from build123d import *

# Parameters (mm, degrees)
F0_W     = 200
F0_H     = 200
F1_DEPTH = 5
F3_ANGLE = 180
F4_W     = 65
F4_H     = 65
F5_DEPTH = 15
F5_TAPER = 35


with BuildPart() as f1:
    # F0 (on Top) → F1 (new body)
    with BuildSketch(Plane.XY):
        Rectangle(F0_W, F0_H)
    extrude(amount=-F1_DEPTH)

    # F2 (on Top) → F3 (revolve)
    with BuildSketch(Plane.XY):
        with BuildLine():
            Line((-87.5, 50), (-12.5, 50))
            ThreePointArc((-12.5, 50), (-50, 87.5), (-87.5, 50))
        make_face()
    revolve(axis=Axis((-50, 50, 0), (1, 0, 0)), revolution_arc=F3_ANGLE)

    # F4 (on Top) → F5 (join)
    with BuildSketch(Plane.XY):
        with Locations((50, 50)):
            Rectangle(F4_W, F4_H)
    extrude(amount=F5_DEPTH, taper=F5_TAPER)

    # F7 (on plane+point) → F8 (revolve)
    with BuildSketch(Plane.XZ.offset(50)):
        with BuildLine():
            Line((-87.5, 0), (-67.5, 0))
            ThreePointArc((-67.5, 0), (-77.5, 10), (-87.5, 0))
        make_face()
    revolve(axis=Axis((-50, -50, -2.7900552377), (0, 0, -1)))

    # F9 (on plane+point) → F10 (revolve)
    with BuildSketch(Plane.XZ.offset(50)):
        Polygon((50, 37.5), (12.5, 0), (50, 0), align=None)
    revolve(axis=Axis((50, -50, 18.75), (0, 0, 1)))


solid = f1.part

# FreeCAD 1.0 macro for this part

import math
import FreeCAD as App
import Part
import Sketcher
from FreeCAD import Vector
Q = App.Units.Quantity

doc = App.newDocument("Part")
body = doc.addObject("PartDesign::Body", "Body")

sketch1 = body.newObject("Sketcher::SketchObject", "Sketch")
sketch1.AttachmentSupport = (doc.getObject("XY_Plane"), [""])
sketch1.MapMode = "FlatFace"
sketch1.addGeometry(Part.LineSegment(Vector(-100, 100, 0), Vector(-100, -100, 0)), False)
sketch1.addGeometry(Part.LineSegment(Vector(-100, -100, 0), Vector(100, -100, 0)), False)
sketch1.addGeometry(Part.LineSegment(Vector(100, -100, 0), Vector(100, 100, 0)), False)
sketch1.addGeometry(Part.LineSegment(Vector(100, 100, 0), Vector(-100, 100, 0)), False)
sketch1.addConstraint(Sketcher.Constraint("Coincident", 0, 2, 1, 1))
sketch1.addConstraint(Sketcher.Constraint("Coincident", 1, 2, 2, 1))
sketch1.addConstraint(Sketcher.Constraint("Coincident", 2, 2, 3, 1))
sketch1.addConstraint(Sketcher.Constraint("Coincident", 3, 2, 0, 1))
sketch1.addConstraint(Sketcher.Constraint("Vertical", 0))
sketch1.addConstraint(Sketcher.Constraint("Horizontal", 1))
sketch1.addConstraint(Sketcher.Constraint("Vertical", 2))
sketch1.addConstraint(Sketcher.Constraint("Horizontal", 3))
sketch1.addConstraint(Sketcher.Constraint("Symmetric", 0, 2, 2, 2, -1, 1))
sketch1.addConstraint(Sketcher.Constraint("Equal", 3, 0))
sketch1.addConstraint(Sketcher.Constraint("DistanceX", 1, 1, 1, 2, Q("200 mm")))
pad1 = body.newObject("PartDesign::Pad", "Pad")
pad1.Profile = sketch1
pad1.Length = 5
pad1.Reversed = True

sketch2 = body.newObject("Sketcher::SketchObject", "Sketch001")
sketch2.AttachmentSupport = (doc.getObject("XY_Plane"), [""])
sketch2.MapMode = "FlatFace"
sketch2.addGeometry(Part.LineSegment(Vector(-87.5, 50, 0), Vector(-12.5, 50, 0)), False)
sketch2.addGeometry(Part.ArcOfCircle(Part.Circle(Vector(-50, 50, 0), Vector(0, 0, 1), 37.5), math.radians(0), math.radians(180)), False)
sketch2.addGeometry(Part.LineSegment(Vector(-87.5, 50, 0), Vector(-12.5, 50, 0)), True)
sketch2.addConstraint(Sketcher.Constraint("Coincident", 0, 1, 1, 2))
sketch2.addConstraint(Sketcher.Constraint("Coincident", 1, 1, 0, 2))
sketch2.addConstraint(Sketcher.Constraint("Horizontal", 0))
sketch2.addConstraint(Sketcher.Constraint("Horizontal", 2))
sketch2.addConstraint(Sketcher.Constraint("Coincident", 2, 1, 0, 1))
sketch2.addConstraint(Sketcher.Constraint("Horizontal", 1, 3, 0, 1))
sketch2.addConstraint(Sketcher.Constraint("Equal", 0, 2))
sketch2.addConstraint(Sketcher.Constraint("Radius", 1, Q("37.5 mm")))
sketch2.addConstraint(Sketcher.Constraint("DistanceX", 1, 3, -1, 1, Q("50 mm")))
sketch2.addConstraint(Sketcher.Constraint("DistanceY", -1, 1, 1, 3, Q("50 mm")))
revolution = body.newObject("PartDesign::Revolution", "Revolution")
revolution.Profile = sketch2
revolution.ReferenceAxis = (sketch2, ["Axis0"])
revolution.Angle = 180

sketch3 = body.newObject("Sketcher::SketchObject", "Sketch002")
sketch3.AttachmentSupport = (doc.getObject("XY_Plane"), [""])
sketch3.MapMode = "FlatFace"
sketch3.addGeometry(Part.LineSegment(Vector(17.5, 82.5, 0), Vector(17.5, 17.5, 0)), False)
sketch3.addGeometry(Part.LineSegment(Vector(17.5, 17.5, 0), Vector(82.5, 17.5, 0)), False)
sketch3.addGeometry(Part.LineSegment(Vector(82.5, 17.5, 0), Vector(82.5, 82.5, 0)), False)
sketch3.addGeometry(Part.LineSegment(Vector(82.5, 82.5, 0), Vector(17.5, 82.5, 0)), False)
sketch3.addConstraint(Sketcher.Constraint("Coincident", 0, 2, 1, 1))
sketch3.addConstraint(Sketcher.Constraint("Coincident", 1, 2, 2, 1))
sketch3.addConstraint(Sketcher.Constraint("Coincident", 2, 2, 3, 1))
sketch3.addConstraint(Sketcher.Constraint("Coincident", 3, 2, 0, 1))
sketch3.addConstraint(Sketcher.Constraint("Vertical", 0))
sketch3.addConstraint(Sketcher.Constraint("Horizontal", 1))
sketch3.addConstraint(Sketcher.Constraint("Vertical", 2))
sketch3.addConstraint(Sketcher.Constraint("Horizontal", 3))
sketch3.addConstraint(Sketcher.Constraint("Equal", 3, 0))
sketch3.addConstraint(Sketcher.Constraint("DistanceX", 1, 1, 1, 2, Q("65 mm")))
sketch3.addConstraint(Sketcher.Constraint("DistanceX", -1, 1, 0, 2, Q("17.5 mm")))
sketch3.addConstraint(Sketcher.Constraint("DistanceY", -1, 1, 0, 2, Q("17.5 mm")))
pad2 = body.newObject("PartDesign::Pad", "Pad001")
pad2.Profile = sketch3
pad2.Length = 15
pad2.TaperAngle = -35

sketch4 = body.newObject("Sketcher::SketchObject", "Sketch003")
sketch4.AttachmentSupport = (doc.getObject("XZ_Plane"), [""])
sketch4.MapMode = "FlatFace"
sketch4.AttachmentOffset = App.Placement(Vector(0, 0, 50), App.Rotation())
sketch4.addGeometry(Part.LineSegment(Vector(-87.5, 0, 0), Vector(-67.5, 0, 0)), False)
sketch4.addGeometry(Part.ArcOfCircle(Part.Circle(Vector(-77.5, 0, 0), Vector(0, 0, 1), 10), math.radians(0), math.radians(180)), False)
sketch4.addGeometry(Part.LineSegment(Vector(-50, 0, 0), Vector(-50, -10, 0)), True)
sketch4.addConstraint(Sketcher.Constraint("Coincident", 0, 1, 1, 2))
sketch4.addConstraint(Sketcher.Constraint("Coincident", 1, 1, 0, 2))
sketch4.addConstraint(Sketcher.Constraint("Horizontal", 0))
sketch4.addConstraint(Sketcher.Constraint("Vertical", 2))
sketch4.addConstraint(Sketcher.Constraint("PointOnObject", 1, 3, -1))
sketch4.addConstraint(Sketcher.Constraint("PointOnObject", 0, 1, -1))
sketch4.addConstraint(Sketcher.Constraint("PointOnObject", 2, 1, -1))
sketch4.addConstraint(Sketcher.Constraint("Radius", 1, Q("10 mm")))
sketch4.addConstraint(Sketcher.Constraint("DistanceY", 2, 2, 2, 1, Q("10 mm")))
sketch4.addConstraint(Sketcher.Constraint("DistanceX", 2, 1, -1, 1, Q("50 mm")))
sketch4.addConstraint(Sketcher.Constraint("DistanceX", 1, 3, -1, 1, Q("77.5 mm")))
revolution2 = body.newObject("PartDesign::Revolution", "Revolution001")
revolution2.Profile = sketch4
revolution2.ReferenceAxis = (sketch4, ["Axis0"])
revolution2.Angle = 360

sketch5 = body.newObject("Sketcher::SketchObject", "Sketch004")
sketch5.AttachmentSupport = (doc.getObject("XZ_Plane"), [""])
sketch5.MapMode = "FlatFace"
sketch5.AttachmentOffset = App.Placement(Vector(0, 0, 50), App.Rotation())
sketch5.addGeometry(Part.LineSegment(Vector(50, 37.5, 0), Vector(12.5, 0, 0)), False)
sketch5.addGeometry(Part.LineSegment(Vector(12.5, 0, 0), Vector(50, 0, 0)), False)
sketch5.addGeometry(Part.LineSegment(Vector(50, 0, 0), Vector(50, 37.5, 0)), False)
sketch5.addGeometry(Part.LineSegment(Vector(50, 0, 0), Vector(50, 37.5, 0)), True)
sketch5.addConstraint(Sketcher.Constraint("Coincident", 0, 2, 1, 1))
sketch5.addConstraint(Sketcher.Constraint("Coincident", 1, 2, 2, 1))
sketch5.addConstraint(Sketcher.Constraint("Coincident", 2, 2, 0, 1))
sketch5.addConstraint(Sketcher.Constraint("Horizontal", 1))
sketch5.addConstraint(Sketcher.Constraint("Vertical", 2))
sketch5.addConstraint(Sketcher.Constraint("Vertical", 3))
sketch5.addConstraint(Sketcher.Constraint("Coincident", 3, 1, 1, 2))
sketch5.addConstraint(Sketcher.Constraint("PointOnObject", 0, 2, -1))
sketch5.addConstraint(Sketcher.Constraint("Equal", 1, 2))
sketch5.addConstraint(Sketcher.Constraint("Equal", 2, 3))
sketch5.addConstraint(Sketcher.Constraint("DistanceX", 1, 1, 1, 2, Q("37.5 mm")))
sketch5.addConstraint(Sketcher.Constraint("DistanceX", -1, 1, 1, 2, Q("50 mm")))
revolution3 = body.newObject("PartDesign::Revolution", "Revolution002")
revolution3.Profile = sketch5
revolution3.ReferenceAxis = (sketch5, ["Axis0"])
revolution3.Angle = 360

doc.recompute()
